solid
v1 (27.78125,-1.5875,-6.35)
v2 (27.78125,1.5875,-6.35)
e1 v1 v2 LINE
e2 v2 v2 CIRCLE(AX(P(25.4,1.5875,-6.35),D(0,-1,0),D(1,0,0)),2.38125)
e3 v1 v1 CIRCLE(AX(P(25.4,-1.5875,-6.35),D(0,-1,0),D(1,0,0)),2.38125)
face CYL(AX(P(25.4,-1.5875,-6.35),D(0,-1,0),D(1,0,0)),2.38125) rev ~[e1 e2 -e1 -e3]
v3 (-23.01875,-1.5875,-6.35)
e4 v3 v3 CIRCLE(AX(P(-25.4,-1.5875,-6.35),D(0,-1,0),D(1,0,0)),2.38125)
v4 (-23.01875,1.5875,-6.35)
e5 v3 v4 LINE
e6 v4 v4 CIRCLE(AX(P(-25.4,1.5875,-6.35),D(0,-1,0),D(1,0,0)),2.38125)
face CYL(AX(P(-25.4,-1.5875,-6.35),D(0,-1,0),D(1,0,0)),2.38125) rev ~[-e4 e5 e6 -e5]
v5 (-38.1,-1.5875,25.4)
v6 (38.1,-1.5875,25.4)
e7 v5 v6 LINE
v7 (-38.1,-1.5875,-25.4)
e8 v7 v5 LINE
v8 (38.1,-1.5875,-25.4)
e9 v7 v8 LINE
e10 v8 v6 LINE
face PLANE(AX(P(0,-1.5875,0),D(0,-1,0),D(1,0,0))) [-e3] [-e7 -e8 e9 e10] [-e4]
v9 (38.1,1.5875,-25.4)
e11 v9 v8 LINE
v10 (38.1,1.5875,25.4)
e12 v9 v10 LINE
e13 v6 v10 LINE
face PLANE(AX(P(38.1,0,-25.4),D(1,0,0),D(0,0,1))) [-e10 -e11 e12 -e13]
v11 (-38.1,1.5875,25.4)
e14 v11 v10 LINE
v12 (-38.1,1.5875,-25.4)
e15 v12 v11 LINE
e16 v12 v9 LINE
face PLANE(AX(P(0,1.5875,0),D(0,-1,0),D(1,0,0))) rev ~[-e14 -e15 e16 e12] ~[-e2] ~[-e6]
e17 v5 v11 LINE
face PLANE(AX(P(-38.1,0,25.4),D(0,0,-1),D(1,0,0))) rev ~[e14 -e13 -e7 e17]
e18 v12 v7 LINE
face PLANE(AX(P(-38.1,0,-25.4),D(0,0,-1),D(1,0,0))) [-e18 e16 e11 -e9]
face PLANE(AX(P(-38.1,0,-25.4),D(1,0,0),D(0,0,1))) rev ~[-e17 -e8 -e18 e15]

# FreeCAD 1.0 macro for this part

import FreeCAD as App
import Part
import Sketcher

V = App.Vector
Q = App.Units.Quantity


def add_polygon(sketch, points):
    """Adds a closed chain of lines whose ends are joined by coincident constraints."""
    first, n = sketch.GeometryCount, len(points)
    for a, b in zip(points, points[1:] + points[:1]):
        sketch.addGeometry(Part.LineSegment(App.Vector(*a, 0), App.Vector(*b, 0)), False)
    for i in range(n):
        sketch.addConstraint(Sketcher.Constraint("Coincident", first + i, 2, first + (i + 1) % n, 1))

doc = App.newDocument("Part")
body = doc.addObject("PartDesign::Body", "Body")

# Sketch on XZ plane
sketch1 = body.newObject("Sketcher::SketchObject", "Sketch")
sketch1.AttachmentSupport = (doc.getObject("XZ_Plane"), [""])
sketch1.MapMode = "FlatFace"
add_polygon(sketch1, [(-38, 25), (-38, -25), (38, -25), (38, 25)])  # lines 0-3
sketch1.addConstraint([
    Sketcher.Constraint("Vertical", 0),
    Sketcher.Constraint("Horizontal", 1),
    Sketcher.Constraint("Vertical", 2),
    Sketcher.Constraint("Horizontal", 3),
    Sketcher.Constraint("Symmetric", 0, 2, 2, 2, -1, 1),
    Sketcher.Constraint("DistanceX", 1, 1, 1, 2, Q("3 in")),
    Sketcher.Constraint("DistanceY", 0, 2, 0, 1, Q("2 in")),
])
pad1 = body.newObject("PartDesign::Pad", "Pad")
pad1.Profile = sketch1
pad1.Length = Q("0.125 in")
pad1.Midplane = True

# Sketch on XZ plane
sketch2 = body.newObject("Sketcher::SketchObject", "Sketch001")
sketch2.AttachmentSupport = (doc.getObject("XZ_Plane"), [""])
sketch2.MapMode = "FlatFace"
sketch2.AttachmentOffset = App.Placement(V(0, 0, 0.0625 * 25.4), App.Rotation())
sketch2.addGeometry(Part.Circle(V(-25.4, -6.3, 0), V(0, 0, 1), 2.4), False)
sketch2.addConstraint([
    Sketcher.Constraint("Diameter", 0, Q("0.1875 in")),
    Sketcher.Constraint("DistanceX", 0, 3, -1, 1, Q("1 in")),
    Sketcher.Constraint("DistanceY", 0, 3, -1, 1, Q("0.25 in")),
])
pocket1 = body.newObject("PartDesign::Pocket", "Pocket")
pocket1.Profile = sketch2
pocket1.Length = Q("0.125 in")

# Sketch on XZ plane
sketch3 = body.newObject("Sketcher::SketchObject", "Sketch002")
sketch3.AttachmentSupport = (doc.getObject("XZ_Plane"), [""])
sketch3.MapMode = "FlatFace"
sketch3.AttachmentOffset = App.Placement(V(0, 0, 0.0625 * 25.4), App.Rotation())
sketch3.addGeometry(Part.Circle(V(25.4, -6.3, 0), V(0, 0, 1), 2.4), False)
sketch3.addConstraint([
    Sketcher.Constraint("Diameter", 0, Q("0.1875 in")),
    Sketcher.Constraint("DistanceX", -1, 1, 0, 3, Q("1 in")),
    Sketcher.Constraint("DistanceY", 0, 3, -1, 1, Q("0.25 in")),
])
pocket2 = body.newObject("PartDesign::Pocket", "Pocket001")
pocket2.Profile = sketch3
pocket2.Length = Q("0.125 in")

doc.recompute()
